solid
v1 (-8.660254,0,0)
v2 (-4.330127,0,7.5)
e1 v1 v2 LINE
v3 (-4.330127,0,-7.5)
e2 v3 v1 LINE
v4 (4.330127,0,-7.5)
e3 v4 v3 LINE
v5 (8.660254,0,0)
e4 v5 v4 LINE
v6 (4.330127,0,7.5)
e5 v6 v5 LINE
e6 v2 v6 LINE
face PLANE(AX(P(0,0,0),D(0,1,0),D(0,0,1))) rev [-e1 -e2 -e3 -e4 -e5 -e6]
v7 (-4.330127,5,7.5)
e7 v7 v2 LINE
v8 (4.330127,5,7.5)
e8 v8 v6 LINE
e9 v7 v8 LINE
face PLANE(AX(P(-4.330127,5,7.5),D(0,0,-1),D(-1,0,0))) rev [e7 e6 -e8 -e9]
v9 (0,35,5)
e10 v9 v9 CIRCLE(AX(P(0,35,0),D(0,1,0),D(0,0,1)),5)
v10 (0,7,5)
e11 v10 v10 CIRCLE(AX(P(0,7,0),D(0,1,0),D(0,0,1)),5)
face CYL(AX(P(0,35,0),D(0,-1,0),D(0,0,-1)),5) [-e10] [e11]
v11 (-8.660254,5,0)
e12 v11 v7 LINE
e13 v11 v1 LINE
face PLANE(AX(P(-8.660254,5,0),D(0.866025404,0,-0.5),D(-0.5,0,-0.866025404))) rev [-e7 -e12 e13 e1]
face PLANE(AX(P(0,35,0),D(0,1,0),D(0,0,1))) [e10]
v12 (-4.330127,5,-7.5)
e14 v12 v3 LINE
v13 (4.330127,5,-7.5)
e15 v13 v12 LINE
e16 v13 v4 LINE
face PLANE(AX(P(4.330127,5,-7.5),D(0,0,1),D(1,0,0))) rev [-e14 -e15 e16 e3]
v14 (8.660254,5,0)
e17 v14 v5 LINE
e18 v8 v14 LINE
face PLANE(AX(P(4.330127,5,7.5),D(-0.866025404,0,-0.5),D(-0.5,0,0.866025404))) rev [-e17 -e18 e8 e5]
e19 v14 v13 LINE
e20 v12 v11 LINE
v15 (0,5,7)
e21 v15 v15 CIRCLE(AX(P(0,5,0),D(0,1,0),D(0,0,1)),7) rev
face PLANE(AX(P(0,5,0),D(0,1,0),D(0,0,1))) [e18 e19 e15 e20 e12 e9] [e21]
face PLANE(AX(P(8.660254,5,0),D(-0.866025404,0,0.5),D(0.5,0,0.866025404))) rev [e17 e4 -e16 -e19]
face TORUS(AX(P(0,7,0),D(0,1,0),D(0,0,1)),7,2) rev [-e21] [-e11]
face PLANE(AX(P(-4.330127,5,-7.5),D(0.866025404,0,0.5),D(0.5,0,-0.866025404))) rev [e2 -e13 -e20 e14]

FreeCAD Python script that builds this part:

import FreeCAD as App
import Part
import Sketcher
Q = App.Units.Quantity


def edges_at(feature, points):
    """Names of the edges that pass closest to the given points."""
    edges = feature.Shape.Edges
    near = lambda p: min(range(len(edges)), key=lambda i: edges[i].distToShape(Part.Vertex(*p))[0])
    return sorted({f"Edge{near(p) + 1}" for p in points})


def add_polygon(sketch, points):
    """Adds a closed chain of lines whose ends are joined by coincident constraints."""
    first, n = sketch.GeometryCount, len(points)
    for a, b in zip(points, points[1:] + points[:1]):
        sketch.addGeometry(Part.LineSegment(App.Vector(*a, 0), App.Vector(*b, 0)), False)
    for i in range(n):
        sketch.addConstraint(Sketcher.Constraint("Coincident", first + i, 2, first + (i + 1) % n, 1))

doc = App.newDocument("Part")
body = doc.addObject("PartDesign::Body", "Body")

# Sketch on XZ plane
sketch1 = body.newObject("Sketcher::SketchObject", "Sketch")
sketch1.AttachmentSupport = (doc.getObject("XZ_Plane"), [""])
sketch1.MapMode = "FlatFace"
add_polygon(sketch1, [(8.660254, 0), (4.330127, -7.5), (-4.330127, -7.5), (-8.660254, 0), (-4.330127, 7.5), (4.330127, 7.5)])  # lines 0-5
sketch1.addConstraint([
    Sketcher.Constraint("Horizontal", 1),
    Sketcher.Constraint("Horizontal", 4),
    Sketcher.Constraint("Symmetric", 0, 2, 3, 2, -1, 1),
    Sketcher.Constraint("Symmetric", 2, 2, 5, 2, -1, 1),
    Sketcher.Constraint("PointOnObject", 2, 2, -1),
    Sketcher.Constraint("Parallel", 2, 5),
    Sketcher.Constraint("Vertical", 1, 2, 3, 2),
    Sketcher.Constraint("Angle", 0, Q("-120 deg")),
    Sketcher.Constraint("DistanceY", 1, 2, 3, 2, 15.0),
    Sketcher.Constraint("DistanceX", 1, 2, 1, 1, 8.660254),
])
pad1 = body.newObject("PartDesign::Pad", "Pad")
pad1.Profile = sketch1
pad1.Length = 5
pad1.Reversed = True

# Sketch on XZ plane
sketch2 = body.newObject("Sketcher::SketchObject", "Sketch001")
sketch2.AttachmentSupport = (doc.getObject("XZ_Plane"), [""])
sketch2.MapMode = "FlatFace"
sketch2.AttachmentOffset = App.Placement(App.Vector(0, 0, -5), App.Rotation())
sketch2.addGeometry(Part.Circle(App.Vector(0, 0, 0), App.Vector(0, 0, 1), 5), False)
sketch2.addConstraint([
    Sketcher.Constraint("Coincident", 0, 3, -1, 1),
    Sketcher.Constraint("Diameter", 0, 10.0),
])
pad2 = body.newObject("PartDesign::Pad", "Pad001")
pad2.Profile = sketch2
pad2.Length = 30
pad2.Reversed = True
doc.recompute()

fillet = body.newObject("PartDesign::Fillet", "Fillet")
fillet.Base = (pad2, edges_at(pad2, [(0, 5, -5)]))
fillet.Radius = 2

doc.recompute()
